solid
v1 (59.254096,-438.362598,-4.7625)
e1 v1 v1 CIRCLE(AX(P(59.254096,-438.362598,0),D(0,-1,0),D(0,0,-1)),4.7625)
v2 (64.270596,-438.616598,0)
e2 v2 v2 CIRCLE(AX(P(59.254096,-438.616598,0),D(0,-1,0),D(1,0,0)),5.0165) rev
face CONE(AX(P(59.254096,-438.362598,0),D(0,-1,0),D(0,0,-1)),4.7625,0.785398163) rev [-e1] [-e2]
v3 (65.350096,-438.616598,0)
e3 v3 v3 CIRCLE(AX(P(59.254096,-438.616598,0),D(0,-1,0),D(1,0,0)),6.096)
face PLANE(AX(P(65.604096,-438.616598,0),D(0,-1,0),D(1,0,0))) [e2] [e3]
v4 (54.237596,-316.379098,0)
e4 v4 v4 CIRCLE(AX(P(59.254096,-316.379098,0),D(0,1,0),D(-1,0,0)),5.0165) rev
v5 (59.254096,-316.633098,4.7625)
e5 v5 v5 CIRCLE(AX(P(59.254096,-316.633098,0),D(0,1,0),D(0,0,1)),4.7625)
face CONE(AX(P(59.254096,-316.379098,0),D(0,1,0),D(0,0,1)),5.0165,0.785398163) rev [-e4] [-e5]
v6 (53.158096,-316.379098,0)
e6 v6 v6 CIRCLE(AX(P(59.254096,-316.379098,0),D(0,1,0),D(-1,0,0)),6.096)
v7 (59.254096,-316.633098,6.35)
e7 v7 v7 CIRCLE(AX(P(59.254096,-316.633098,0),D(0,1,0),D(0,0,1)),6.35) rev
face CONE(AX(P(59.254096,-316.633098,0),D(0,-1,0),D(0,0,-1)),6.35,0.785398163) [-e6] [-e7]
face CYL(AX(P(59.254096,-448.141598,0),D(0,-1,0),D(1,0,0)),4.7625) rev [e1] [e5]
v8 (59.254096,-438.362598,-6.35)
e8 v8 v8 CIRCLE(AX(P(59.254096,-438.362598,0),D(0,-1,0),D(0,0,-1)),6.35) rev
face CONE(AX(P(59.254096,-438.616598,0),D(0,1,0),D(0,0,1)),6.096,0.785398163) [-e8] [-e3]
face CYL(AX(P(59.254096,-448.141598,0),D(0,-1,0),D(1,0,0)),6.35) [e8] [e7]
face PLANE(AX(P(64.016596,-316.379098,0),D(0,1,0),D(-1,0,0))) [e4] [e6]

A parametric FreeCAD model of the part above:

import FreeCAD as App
import Part
import Sketcher
Q = App.Units.Quantity


def edges_at(feature, points):
    """Names of the edges that pass closest to the given points."""
    edges = feature.Shape.Edges
    near = lambda p: min(range(len(edges)), key=lambda i: edges[i].distToShape(Part.Vertex(*p))[0])
    return sorted({f"Edge{near(p) + 1}" for p in points})

doc = App.newDocument("Part")
body = doc.addObject("PartDesign::Body", "Body")

sketch1 = doc.addObject("Sketcher::SketchObject", "Sketch")
body.addObject(sketch1)
sketch1.AttachmentSupport = (doc.XY_Plane, [""])
sketch1.MapMode = "FlatFace"
sketch1.addGeometry([
    Part.LineSegment(App.Vector(64, -316.4, 0), App.Vector(64, -438.6, 0)),
    Part.LineSegment(App.Vector(64, -438.6, 0), App.Vector(65.6, -438.6, 0)),
    Part.LineSegment(App.Vector(65.6, -438.6, 0), App.Vector(65.6, -316.4, 0)),
    Part.LineSegment(App.Vector(65.6, -316.4, 0), App.Vector(64, -316.4, 0)),
], False)
sketch1.addGeometry(Part.LineSegment(App.Vector(59.3, -438.6, 0), App.Vector(59.3, -316.4, 0)), True)
sketch1.addConstraint([
    Sketcher.Constraint("Coincident", 0, 2, 1, 1),
    Sketcher.Constraint("Coincident", 1, 2, 2, 1),
    Sketcher.Constraint("Coincident", 2, 2, 3, 1),
    Sketcher.Constraint("Coincident", 3, 2, 0, 1),
    Sketcher.Constraint("Vertical", 0),
    Sketcher.Constraint("Horizontal", 1),
    Sketcher.Constraint("Vertical", 2),
    Sketcher.Constraint("Horizontal", 3),
    Sketcher.Constraint("Vertical", 4),
    Sketcher.Constraint("Horizontal", 1, 2, 4, 1),
    Sketcher.Constraint("Horizontal", 3, 2, 4, 2),
    Sketcher.Constraint("DistanceX", 1, 1, 1, 2, Q("0.0625 in")),
    Sketcher.Constraint("DistanceY", 0, 2, 0, 1, Q("4.8125 in")),
    Sketcher.Constraint("DistanceX", 4, 1, 1, 2, Q("0.25 in")),
    Sketcher.Constraint("DistanceY", 0, 2, -1, 1, Q("438.616598 mm")),
    Sketcher.Constraint("DistanceX", -1, 1, 0, 2, Q("64.016596 mm")),
])
revolution = doc.addObject("PartDesign::Revolution", "Revolution")
body.addObject(revolution)
revolution.Profile = sketch1
revolution.ReferenceAxis = (sketch1, ["Axis0"])
revolution.Angle = 360
doc.recompute()

chamfer = doc.addObject("PartDesign::Chamfer", "Chamfer")
body.addObject(chamfer)
chamfer.Base = (revolution, edges_at(revolution, [
    (52.904, -438.617, 0),
    (52.904, -316.379, 0),
    (54.492, -316.379, 0),
    (54.492, -438.617, 0),
]))
chamfer.Size = Q("0.01 in")

doc.recompute()
